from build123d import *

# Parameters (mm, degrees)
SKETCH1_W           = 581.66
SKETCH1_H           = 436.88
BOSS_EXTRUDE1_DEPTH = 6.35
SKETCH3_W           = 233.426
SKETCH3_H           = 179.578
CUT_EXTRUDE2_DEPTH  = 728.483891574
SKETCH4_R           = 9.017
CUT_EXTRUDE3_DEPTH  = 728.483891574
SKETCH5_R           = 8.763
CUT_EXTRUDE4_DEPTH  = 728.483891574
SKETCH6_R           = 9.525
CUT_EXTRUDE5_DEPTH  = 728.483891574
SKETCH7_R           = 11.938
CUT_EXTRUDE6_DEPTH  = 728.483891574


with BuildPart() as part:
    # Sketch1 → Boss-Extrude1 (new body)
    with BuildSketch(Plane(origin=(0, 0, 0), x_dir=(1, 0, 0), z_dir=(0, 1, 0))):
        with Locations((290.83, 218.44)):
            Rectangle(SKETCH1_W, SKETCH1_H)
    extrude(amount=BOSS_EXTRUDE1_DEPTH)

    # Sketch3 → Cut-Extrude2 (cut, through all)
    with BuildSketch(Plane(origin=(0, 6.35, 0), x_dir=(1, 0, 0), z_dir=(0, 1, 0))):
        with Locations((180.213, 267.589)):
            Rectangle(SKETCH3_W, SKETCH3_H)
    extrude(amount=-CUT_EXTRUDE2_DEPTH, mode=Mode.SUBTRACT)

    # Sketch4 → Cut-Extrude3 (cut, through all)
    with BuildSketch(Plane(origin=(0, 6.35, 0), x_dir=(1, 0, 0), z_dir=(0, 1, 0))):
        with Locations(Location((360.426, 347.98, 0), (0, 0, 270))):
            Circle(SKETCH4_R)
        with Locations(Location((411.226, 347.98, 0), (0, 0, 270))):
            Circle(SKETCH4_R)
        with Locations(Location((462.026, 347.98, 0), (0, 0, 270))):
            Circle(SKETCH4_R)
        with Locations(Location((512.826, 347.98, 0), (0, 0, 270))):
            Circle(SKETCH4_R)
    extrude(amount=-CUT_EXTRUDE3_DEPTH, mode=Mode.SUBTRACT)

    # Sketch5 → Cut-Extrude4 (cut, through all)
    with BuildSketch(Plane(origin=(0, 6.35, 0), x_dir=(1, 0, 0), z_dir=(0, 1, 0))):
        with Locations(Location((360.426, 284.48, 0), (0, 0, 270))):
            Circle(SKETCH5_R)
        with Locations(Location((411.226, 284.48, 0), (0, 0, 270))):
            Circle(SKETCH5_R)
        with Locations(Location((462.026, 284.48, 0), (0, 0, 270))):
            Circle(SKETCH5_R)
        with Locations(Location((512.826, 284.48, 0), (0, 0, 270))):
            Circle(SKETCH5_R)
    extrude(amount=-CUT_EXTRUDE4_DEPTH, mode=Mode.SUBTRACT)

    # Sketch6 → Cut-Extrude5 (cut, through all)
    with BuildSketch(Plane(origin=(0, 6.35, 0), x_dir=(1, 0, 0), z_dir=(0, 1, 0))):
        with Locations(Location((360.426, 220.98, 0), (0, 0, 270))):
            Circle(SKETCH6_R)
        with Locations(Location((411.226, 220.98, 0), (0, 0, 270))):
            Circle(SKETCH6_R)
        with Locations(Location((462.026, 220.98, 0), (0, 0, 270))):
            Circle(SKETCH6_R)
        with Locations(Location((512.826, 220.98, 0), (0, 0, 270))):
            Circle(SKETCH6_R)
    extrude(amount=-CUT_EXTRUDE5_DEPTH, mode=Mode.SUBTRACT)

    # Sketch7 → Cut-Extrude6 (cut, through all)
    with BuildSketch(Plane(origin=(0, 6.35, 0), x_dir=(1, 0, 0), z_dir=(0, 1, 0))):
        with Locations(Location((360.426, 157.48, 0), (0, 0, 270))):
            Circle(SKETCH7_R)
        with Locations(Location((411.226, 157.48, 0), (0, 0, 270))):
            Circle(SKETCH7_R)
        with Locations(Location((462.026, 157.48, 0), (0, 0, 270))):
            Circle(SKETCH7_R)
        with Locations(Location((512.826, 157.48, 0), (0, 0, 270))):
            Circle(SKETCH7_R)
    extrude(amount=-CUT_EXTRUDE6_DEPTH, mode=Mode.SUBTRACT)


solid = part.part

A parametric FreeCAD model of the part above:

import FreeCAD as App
import Part
import Sketcher
Q = App.Units.Quantity


def add_polygon(sketch, points):
    """Adds a closed chain of lines whose ends are joined by coincident constraints."""
    first, n = sketch.GeometryCount, len(points)
    for a, b in zip(points, points[1:] + points[:1]):
        sketch.addGeometry(Part.LineSegment(App.Vector(*a, 0), App.Vector(*b, 0)), False)
    for i in range(n):
        sketch.addConstraint(Sketcher.Constraint("Coincident", first + i, 2, first + (i + 1) % n, 1))

doc = App.newDocument("Part")
body = doc.addObject("PartDesign::Body", "Body")

sketch1 = body.newObject("Sketcher::SketchObject", "Sketch")
sketch1.AttachmentSupport = (doc.getObject("XZ_Plane"), [""])
sketch1.MapMode = "FlatFace"
add_polygon(sketch1, [(0, -436.88), (0, 0), (581.66, 0), (581.66, -436.88)])
sketch1.addConstraint([
    Sketcher.Constraint("Vertical", 0),
    Sketcher.Constraint("Horizontal", 1),
    Sketcher.Constraint("Vertical", 2),
    Sketcher.Constraint("Horizontal", 3),
    Sketcher.Constraint("Coincident", 0, 2, -1, 1),
    Sketcher.Constraint("DistanceX", 1, 1, 1, 2, Q("22.9 in")),
    Sketcher.Constraint("DistanceY", 0, 1, 0, 2, Q("17.2 in")),
])
pad1 = body.newObject("PartDesign::Pad", "Pad")
pad1.Profile = sketch1
pad1.Length = Q("0.25 in")
pad1.Reversed = True

sketch2 = body.newObject("Sketcher::SketchObject", "Sketch001")
sketch2.AttachmentSupport = (doc.getObject("XZ_Plane"), [""])
sketch2.MapMode = "FlatFace"
sketch2.AttachmentOffset = App.Placement(App.Vector(0, 0, -0.25 * 25.4), App.Rotation())
add_polygon(sketch2, [(63.5, -357.378), (63.5, -177.8), (296.926, -177.8), (296.926, -357.378)])
sketch2.addConstraint([
    Sketcher.Constraint("Vertical", 0),
    Sketcher.Constraint("Horizontal", 1),
    Sketcher.Constraint("Vertical", 2),
    Sketcher.Constraint("Horizontal", 3),
    Sketcher.Constraint("DistanceY", 0, 2, -1, 1, Q("7 in")),
    Sketcher.Constraint("DistanceX", 1, 1, 1, 2, Q("9.19 in")),
    Sketcher.Constraint("DistanceY", 0, 1, 0, 2, Q("7.07 in")),
    Sketcher.Constraint("DistanceX", -1, 1, 0, 2, Q("2.5 in")),
])
pocket1 = body.newObject("PartDesign::Pocket", "Pocket")
pocket1.Profile = sketch2
pocket1.Type = "ThroughAll"
pocket1.Reversed = True

sketch3 = body.newObject("Sketcher::SketchObject", "Sketch002")
sketch3.AttachmentSupport = (doc.getObject("XZ_Plane"), [""])
sketch3.MapMode = "FlatFace"
sketch3.AttachmentOffset = App.Placement(App.Vector(0, 0, -0.25 * 25.4), App.Rotation())
sketch3.addGeometry([
    Part.Circle(App.Vector(360.426, -347.98, 0), App.Vector(0, 0, 1), 9.017),
    Part.Circle(App.Vector(411.226, -347.98, 0), App.Vector(0, 0, 1), 9.017),
    Part.Circle(App.Vector(462.026, -347.98, 0), App.Vector(0, 0, 1), 9.017),
    Part.Circle(App.Vector(512.826, -347.98, 0), App.Vector(0, 0, 1), 9.017),
], False)
sketch3.addConstraint([
    Sketcher.Constraint("Equal", 0, 1),
    Sketcher.Constraint("Equal", 1, 2),
    Sketcher.Constraint("Equal", 2, 3),
    Sketcher.Constraint("Horizontal", 0, 3, 1, 3),
    Sketcher.Constraint("Horizontal", 1, 3, 2, 3),
    Sketcher.Constraint("Horizontal", 2, 3, 3, 3),
    Sketcher.Constraint("Diameter", 0, Q("0.71 in")),
    Sketcher.Constraint("DistanceX", 0, 3, 1, 3, Q("2 in")),
    Sketcher.Constraint("DistanceX", 1, 3, 2, 3, Q("2 in")),
    Sketcher.Constraint("DistanceX", 2, 3, 3, 3, Q("2 in")),
    Sketcher.Constraint("DistanceY", 0, 3, -1, 1, Q("13.7 in")),
    Sketcher.Constraint("DistanceX", -1, 1, 0, 3, Q("14.19 in")),
])
pocket2 = body.newObject("PartDesign::Pocket", "Pocket001")
pocket2.Profile = sketch3
pocket2.Type = "ThroughAll"
pocket2.Reversed = True

sketch4 = body.newObject("Sketcher::SketchObject", "Sketch003")
sketch4.AttachmentSupport = (doc.getObject("XZ_Plane"), [""])
sketch4.MapMode = "FlatFace"
sketch4.AttachmentOffset = App.Placement(App.Vector(0, 0, -0.25 * 25.4), App.Rotation())
sketch4.addGeometry([
    Part.Circle(App.Vector(360.426, -284.48, 0), App.Vector(0, 0, 1), 8.763),
    Part.Circle(App.Vector(411.226, -284.48, 0), App.Vector(0, 0, 1), 8.763),
    Part.Circle(App.Vector(462.026, -284.48, 0), App.Vector(0, 0, 1), 8.763),
    Part.Circle(App.Vector(512.826, -284.48, 0), App.Vector(0, 0, 1), 8.763),
], False)
sketch4.addConstraint([
    Sketcher.Constraint("Equal", 0, 1),
    Sketcher.Constraint("Equal", 1, 2),
    Sketcher.Constraint("Equal", 2, 3),
    Sketcher.Constraint("Horizontal", 0, 3, 1, 3),
    Sketcher.Constraint("Horizontal", 1, 3, 2, 3),
    Sketcher.Constraint("Horizontal", 2, 3, 3, 3),
    Sketcher.Constraint("Diameter", 0, Q("0.69 in")),
    Sketcher.Constraint("DistanceX", 0, 3, 1, 3, Q("2 in")),
    Sketcher.Constraint("DistanceX", 1, 3, 2, 3, Q("2 in")),
    Sketcher.Constraint("DistanceX", 2, 3, 3, 3, Q("2 in")),
    Sketcher.Constraint("DistanceY", 0, 3, -1, 1, Q("11.2 in")),
    Sketcher.Constraint("DistanceX", -1, 1, 0, 3, Q("14.19 in")),
])
pocket3 = body.newObject("PartDesign::Pocket", "Pocket002")
pocket3.Profile = sketch4
pocket3.Type = "ThroughAll"
pocket3.Reversed = True

sketch5 = body.newObject("Sketcher::SketchObject", "Sketch004")
sketch5.AttachmentSupport = (doc.getObject("XZ_Plane"), [""])
sketch5.MapMode = "FlatFace"
sketch5.AttachmentOffset = App.Placement(App.Vector(0, 0, -0.25 * 25.4), App.Rotation())
sketch5.addGeometry([
    Part.Circle(App.Vector(360.426, -220.98, 0), App.Vector(0, 0, 1), 9.525),
    Part.Circle(App.Vector(411.226, -220.98, 0), App.Vector(0, 0, 1), 9.525),
    Part.Circle(App.Vector(462.026, -220.98, 0), App.Vector(0, 0, 1), 9.525),
    Part.Circle(App.Vector(512.826, -220.98, 0), App.Vector(0, 0, 1), 9.525),
], False)
sketch5.addConstraint([
    Sketcher.Constraint("Equal", 0, 1),
    Sketcher.Constraint("Equal", 1, 2),
    Sketcher.Constraint("Equal", 2, 3),
    Sketcher.Constraint("Horizontal", 0, 3, 1, 3),
    Sketcher.Constraint("Horizontal", 1, 3, 2, 3),
    Sketcher.Constraint("Horizontal", 2, 3, 3, 3),
    Sketcher.Constraint("Diameter", 0, Q("0.75 in")),
    Sketcher.Constraint("DistanceX", 0, 3, 1, 3, Q("2 in")),
    Sketcher.Constraint("DistanceX", 1, 3, 2, 3, Q("2 in")),
    Sketcher.Constraint("DistanceX", 2, 3, 3, 3, Q("2 in")),
    Sketcher.Constraint("DistanceY", 0, 3, -1, 1, Q("8.7 in")),
    Sketcher.Constraint("DistanceX", -1, 1, 0, 3, Q("14.19 in")),
])
pocket4 = body.newObject("PartDesign::Pocket", "Pocket003")
pocket4.Profile = sketch5
pocket4.Type = "ThroughAll"
pocket4.Reversed = True

sketch6 = body.newObject("Sketcher::SketchObject", "Sketch005")
sketch6.AttachmentSupport = (doc.getObject("XZ_Plane"), [""])
sketch6.MapMode = "FlatFace"
sketch6.AttachmentOffset = App.Placement(App.Vector(0, 0, -0.25 * 25.4), App.Rotation())
sketch6.addGeometry([
    Part.Circle(App.Vector(360.426, -157.48, 0), App.Vector(0, 0, 1), 11.938),
    Part.Circle(App.Vector(411.226, -157.48, 0), App.Vector(0, 0, 1), 11.938),
    Part.Circle(App.Vector(462.026, -157.48, 0), App.Vector(0, 0, 1), 11.938),
    Part.Circle(App.Vector(512.826, -157.48, 0), App.Vector(0, 0, 1), 11.938),
], False)
sketch6.addConstraint([
    Sketcher.Constraint("Equal", 0, 1),
    Sketcher.Constraint("Equal", 1, 2),
    Sketcher.Constraint("Equal", 2, 3),
    Sketcher.Constraint("Horizontal", 0, 3, 1, 3),
    Sketcher.Constraint("Horizontal", 1, 3, 2, 3),
    Sketcher.Constraint("Horizontal", 2, 3, 3, 3),
    Sketcher.Constraint("Diameter", 0, Q("0.94 in")),
    Sketcher.Constraint("DistanceX", 0, 3, 1, 3, Q("2 in")),
    Sketcher.Constraint("DistanceX", 1, 3, 2, 3, Q("2 in")),
    Sketcher.Constraint("DistanceX", 2, 3, 3, 3, Q("2 in")),
    Sketcher.Constraint("DistanceY", 0, 3, -1, 1, Q("6.2 in")),
    Sketcher.Constraint("DistanceX", -1, 1, 0, 3, Q("14.19 in")),
])
pocket5 = body.newObject("PartDesign::Pocket", "Pocket004")
pocket5.Profile = sketch6
pocket5.Type = "ThroughAll"
pocket5.Reversed = True

doc.recompute()
